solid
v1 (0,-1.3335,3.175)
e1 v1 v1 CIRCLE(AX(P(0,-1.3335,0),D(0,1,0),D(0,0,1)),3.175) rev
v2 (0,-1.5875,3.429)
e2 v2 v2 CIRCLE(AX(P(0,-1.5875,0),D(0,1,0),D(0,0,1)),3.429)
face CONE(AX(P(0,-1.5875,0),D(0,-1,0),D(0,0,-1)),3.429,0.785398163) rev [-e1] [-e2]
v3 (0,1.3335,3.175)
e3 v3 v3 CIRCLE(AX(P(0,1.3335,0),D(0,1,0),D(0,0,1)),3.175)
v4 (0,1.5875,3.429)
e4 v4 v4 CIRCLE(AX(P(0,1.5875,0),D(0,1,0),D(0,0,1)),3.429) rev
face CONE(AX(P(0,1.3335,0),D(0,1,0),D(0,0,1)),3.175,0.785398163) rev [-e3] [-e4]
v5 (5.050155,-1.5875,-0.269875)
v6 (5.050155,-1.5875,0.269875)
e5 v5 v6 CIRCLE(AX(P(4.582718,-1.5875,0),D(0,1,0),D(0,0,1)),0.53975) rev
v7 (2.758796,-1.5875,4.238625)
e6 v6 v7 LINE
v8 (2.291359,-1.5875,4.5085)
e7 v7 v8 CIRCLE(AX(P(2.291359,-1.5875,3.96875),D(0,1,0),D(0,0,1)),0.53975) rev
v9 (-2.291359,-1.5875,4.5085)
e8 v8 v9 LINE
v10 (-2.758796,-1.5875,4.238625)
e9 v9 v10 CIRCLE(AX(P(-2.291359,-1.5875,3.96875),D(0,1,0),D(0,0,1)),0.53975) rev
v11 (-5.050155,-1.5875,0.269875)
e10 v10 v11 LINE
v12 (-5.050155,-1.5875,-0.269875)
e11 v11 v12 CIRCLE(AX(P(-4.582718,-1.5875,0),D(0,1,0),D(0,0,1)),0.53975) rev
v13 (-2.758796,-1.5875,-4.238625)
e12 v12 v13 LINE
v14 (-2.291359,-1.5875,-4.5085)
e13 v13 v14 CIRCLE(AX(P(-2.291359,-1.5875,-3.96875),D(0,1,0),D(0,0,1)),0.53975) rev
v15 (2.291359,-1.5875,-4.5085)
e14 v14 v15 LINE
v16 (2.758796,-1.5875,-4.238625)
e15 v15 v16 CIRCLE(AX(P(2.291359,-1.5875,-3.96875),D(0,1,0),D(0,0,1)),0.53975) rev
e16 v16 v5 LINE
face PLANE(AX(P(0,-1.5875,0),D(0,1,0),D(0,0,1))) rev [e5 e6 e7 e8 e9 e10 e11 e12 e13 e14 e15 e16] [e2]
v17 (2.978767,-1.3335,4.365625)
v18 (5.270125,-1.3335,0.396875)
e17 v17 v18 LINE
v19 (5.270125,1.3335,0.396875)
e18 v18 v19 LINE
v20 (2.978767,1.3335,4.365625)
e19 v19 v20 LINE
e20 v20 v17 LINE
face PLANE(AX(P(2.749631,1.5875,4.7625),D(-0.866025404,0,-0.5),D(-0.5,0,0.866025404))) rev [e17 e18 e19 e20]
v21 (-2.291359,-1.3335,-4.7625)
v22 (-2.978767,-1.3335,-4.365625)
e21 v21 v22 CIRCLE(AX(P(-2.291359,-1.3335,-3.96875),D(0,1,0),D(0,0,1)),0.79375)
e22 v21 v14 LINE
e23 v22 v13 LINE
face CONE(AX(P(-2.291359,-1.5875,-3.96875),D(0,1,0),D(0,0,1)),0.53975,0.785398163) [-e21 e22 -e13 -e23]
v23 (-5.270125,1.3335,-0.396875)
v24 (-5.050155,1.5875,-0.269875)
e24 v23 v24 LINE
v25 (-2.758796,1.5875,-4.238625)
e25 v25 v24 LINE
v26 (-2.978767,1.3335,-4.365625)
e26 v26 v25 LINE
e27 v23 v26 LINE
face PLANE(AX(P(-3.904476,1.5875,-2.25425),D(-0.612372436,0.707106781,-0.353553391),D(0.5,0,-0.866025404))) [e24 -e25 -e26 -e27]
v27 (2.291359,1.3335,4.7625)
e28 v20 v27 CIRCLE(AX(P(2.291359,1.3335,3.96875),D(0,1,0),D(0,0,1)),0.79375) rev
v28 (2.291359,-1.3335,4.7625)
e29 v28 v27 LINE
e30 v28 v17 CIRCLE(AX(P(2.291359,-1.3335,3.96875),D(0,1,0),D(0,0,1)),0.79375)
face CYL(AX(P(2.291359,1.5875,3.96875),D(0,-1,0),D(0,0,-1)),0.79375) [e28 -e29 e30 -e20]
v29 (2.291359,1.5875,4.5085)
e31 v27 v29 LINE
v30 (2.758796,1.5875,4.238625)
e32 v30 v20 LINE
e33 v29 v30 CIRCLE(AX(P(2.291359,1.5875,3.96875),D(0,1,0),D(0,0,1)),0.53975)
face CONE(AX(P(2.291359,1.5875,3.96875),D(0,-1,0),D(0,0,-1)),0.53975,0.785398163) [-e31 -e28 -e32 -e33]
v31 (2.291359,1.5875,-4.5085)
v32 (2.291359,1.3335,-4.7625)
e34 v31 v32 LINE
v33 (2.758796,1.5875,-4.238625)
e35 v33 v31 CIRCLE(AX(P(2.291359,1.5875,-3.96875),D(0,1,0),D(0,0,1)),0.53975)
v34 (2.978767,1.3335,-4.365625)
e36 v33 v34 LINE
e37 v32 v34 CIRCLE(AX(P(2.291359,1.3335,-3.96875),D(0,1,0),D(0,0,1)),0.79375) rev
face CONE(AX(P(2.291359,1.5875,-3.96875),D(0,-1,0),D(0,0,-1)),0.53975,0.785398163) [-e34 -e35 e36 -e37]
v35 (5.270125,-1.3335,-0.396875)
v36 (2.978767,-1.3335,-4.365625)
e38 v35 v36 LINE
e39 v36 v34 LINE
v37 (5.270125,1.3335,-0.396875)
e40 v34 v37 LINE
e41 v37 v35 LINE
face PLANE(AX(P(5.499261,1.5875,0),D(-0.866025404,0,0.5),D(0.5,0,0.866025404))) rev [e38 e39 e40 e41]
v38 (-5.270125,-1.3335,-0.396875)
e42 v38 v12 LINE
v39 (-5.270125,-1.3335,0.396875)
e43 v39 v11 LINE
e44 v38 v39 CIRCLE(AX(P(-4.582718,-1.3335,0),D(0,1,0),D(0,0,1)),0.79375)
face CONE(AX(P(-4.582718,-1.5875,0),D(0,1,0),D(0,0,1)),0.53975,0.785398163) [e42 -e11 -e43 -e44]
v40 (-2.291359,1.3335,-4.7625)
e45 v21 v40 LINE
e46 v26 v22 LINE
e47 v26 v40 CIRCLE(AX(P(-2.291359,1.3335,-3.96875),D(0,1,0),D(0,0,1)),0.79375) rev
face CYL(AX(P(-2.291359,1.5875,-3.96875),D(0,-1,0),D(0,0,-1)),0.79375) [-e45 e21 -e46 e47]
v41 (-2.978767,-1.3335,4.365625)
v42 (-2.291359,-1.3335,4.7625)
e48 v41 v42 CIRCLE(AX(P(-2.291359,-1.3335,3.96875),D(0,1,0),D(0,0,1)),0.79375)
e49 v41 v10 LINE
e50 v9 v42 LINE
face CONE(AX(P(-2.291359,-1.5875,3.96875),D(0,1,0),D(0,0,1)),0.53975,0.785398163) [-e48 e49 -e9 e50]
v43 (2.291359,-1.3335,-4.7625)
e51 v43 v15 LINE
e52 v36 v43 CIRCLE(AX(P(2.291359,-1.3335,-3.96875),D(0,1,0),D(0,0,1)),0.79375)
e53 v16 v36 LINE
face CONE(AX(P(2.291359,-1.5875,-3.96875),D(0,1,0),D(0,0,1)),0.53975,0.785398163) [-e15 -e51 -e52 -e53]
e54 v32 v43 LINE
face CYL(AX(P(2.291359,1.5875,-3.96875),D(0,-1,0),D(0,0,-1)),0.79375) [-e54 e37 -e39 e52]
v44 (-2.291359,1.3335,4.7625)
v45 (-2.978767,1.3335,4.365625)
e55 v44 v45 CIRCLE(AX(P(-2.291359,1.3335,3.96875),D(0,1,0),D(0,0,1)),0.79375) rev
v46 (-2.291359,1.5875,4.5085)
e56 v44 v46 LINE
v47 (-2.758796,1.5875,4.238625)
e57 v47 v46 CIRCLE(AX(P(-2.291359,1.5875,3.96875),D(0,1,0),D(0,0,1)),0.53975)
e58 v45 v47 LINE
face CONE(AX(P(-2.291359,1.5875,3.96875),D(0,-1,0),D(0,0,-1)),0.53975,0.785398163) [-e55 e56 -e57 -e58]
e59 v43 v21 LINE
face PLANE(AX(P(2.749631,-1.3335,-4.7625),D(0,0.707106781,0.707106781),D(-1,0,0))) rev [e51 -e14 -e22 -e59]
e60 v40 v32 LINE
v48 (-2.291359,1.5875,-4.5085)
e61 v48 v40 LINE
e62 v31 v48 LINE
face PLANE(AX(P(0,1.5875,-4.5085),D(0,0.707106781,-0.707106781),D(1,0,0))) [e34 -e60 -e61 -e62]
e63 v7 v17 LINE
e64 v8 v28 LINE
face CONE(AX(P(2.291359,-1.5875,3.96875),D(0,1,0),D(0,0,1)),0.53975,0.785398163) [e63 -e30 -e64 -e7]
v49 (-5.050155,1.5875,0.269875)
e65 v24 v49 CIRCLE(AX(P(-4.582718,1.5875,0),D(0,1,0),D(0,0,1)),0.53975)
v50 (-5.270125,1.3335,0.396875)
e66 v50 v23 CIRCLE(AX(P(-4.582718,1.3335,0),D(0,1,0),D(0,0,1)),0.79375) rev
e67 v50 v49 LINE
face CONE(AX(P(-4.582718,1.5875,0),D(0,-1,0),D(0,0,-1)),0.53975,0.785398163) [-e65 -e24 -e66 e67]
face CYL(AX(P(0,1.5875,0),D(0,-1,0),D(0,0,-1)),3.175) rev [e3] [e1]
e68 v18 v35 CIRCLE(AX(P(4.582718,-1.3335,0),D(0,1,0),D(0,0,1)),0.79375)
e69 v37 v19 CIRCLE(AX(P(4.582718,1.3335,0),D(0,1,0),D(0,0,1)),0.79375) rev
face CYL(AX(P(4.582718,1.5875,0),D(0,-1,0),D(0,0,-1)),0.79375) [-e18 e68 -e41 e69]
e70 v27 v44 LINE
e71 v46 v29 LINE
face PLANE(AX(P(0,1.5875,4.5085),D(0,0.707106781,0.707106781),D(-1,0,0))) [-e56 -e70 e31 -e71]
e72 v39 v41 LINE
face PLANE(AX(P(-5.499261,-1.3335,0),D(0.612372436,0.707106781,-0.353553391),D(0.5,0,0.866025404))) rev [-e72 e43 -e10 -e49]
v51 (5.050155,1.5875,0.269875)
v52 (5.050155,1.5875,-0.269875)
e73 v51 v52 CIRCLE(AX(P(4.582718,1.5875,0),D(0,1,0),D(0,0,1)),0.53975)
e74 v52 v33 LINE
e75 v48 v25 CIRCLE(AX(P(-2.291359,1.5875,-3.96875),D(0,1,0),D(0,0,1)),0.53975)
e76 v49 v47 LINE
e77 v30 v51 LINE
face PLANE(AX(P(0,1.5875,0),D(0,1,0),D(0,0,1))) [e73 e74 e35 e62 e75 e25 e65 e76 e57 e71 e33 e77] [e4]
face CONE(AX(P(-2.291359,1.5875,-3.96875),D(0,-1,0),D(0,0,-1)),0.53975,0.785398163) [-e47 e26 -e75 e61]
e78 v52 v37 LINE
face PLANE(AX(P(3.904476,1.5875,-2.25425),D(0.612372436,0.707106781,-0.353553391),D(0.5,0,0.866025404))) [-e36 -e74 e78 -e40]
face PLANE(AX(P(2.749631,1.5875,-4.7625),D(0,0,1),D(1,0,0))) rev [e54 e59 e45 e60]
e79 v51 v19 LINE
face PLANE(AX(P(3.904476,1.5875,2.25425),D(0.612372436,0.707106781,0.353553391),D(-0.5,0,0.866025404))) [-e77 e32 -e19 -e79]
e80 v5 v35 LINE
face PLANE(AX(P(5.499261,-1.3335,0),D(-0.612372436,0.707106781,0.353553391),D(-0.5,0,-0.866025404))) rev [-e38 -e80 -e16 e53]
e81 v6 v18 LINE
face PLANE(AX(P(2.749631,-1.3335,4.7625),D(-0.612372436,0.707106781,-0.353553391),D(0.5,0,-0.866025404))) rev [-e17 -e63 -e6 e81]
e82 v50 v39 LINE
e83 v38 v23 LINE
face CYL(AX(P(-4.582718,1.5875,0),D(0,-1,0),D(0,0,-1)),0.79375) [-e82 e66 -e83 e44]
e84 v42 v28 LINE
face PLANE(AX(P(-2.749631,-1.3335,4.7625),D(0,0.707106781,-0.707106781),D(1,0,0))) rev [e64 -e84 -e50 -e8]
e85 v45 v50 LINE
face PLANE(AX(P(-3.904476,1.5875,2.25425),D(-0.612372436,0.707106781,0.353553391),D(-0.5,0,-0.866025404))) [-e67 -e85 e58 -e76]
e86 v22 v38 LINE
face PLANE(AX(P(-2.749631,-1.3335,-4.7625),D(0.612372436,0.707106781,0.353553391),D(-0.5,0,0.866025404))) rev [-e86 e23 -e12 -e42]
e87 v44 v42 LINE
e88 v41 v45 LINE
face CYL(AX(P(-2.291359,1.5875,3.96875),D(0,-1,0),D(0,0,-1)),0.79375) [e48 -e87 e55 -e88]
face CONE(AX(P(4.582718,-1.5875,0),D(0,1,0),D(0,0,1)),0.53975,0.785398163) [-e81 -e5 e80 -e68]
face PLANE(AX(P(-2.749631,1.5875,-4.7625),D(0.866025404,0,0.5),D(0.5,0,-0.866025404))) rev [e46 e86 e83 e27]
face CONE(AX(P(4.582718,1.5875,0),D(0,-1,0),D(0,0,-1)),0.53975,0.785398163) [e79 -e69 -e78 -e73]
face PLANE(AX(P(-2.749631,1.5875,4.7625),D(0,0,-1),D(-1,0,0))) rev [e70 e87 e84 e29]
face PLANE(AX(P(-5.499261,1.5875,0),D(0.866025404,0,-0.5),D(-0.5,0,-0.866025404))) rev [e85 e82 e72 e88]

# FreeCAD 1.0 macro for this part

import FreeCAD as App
import Part
import Sketcher

V = App.Vector
Q = App.Units.Quantity


def edges_at(feature, points):
    """Names of the edges that pass closest to the given points."""
    edges = feature.Shape.Edges
    near = lambda p: min(range(len(edges)), key=lambda i: edges[i].distToShape(Part.Vertex(*p))[0])
    return sorted({f"Edge{near(p) + 1}" for p in points})

doc = App.newDocument("Part")
body = doc.addObject("PartDesign::Body", "Body")

# Sketch on XZ plane
sketch1 = body.newObject("Sketcher::SketchObject", "Sketch")
sketch1.AttachmentSupport = (doc.getObject("XZ_Plane"), [""])
sketch1.MapMode = "FlatFace"
sketch1.addGeometry(Part.LineSegment(V(2.7, -4.8, 0), V(-2.7, -4.8, 0)), False)
sketch1.addGeometry(Part.LineSegment(V(-2.7, -4.8, 0), V(-5.5, 0, 0)), False)
sketch1.addGeometry(Part.LineSegment(V(-5.5, 0, 0), V(-2.7, 4.8, 0)), False)
sketch1.addGeometry(Part.LineSegment(V(-2.7, 4.8, 0), V(2.7, 4.8, 0)), False)
sketch1.addGeometry(Part.LineSegment(V(2.7, 4.8, 0), V(5.5, 0, 0)), False)
sketch1.addGeometry(Part.LineSegment(V(5.5, 0, 0), V(2.7, -4.8, 0)), False)
sketch1.addGeometry(Part.Circle(V(0, 0, 0), V(0, 0, 1), 3.2), False)
sketch1.addConstraint(Sketcher.Constraint("Coincident", 0, 2, 1, 1))
sketch1.addConstraint(Sketcher.Constraint("Coincident", 1, 2, 2, 1))
sketch1.addConstraint(Sketcher.Constraint("Coincident", 2, 2, 3, 1))
sketch1.addConstraint(Sketcher.Constraint("Coincident", 3, 2, 4, 1))
sketch1.addConstraint(Sketcher.Constraint("Coincident", 4, 2, 5, 1))
sketch1.addConstraint(Sketcher.Constraint("Coincident", 5, 2, 0, 1))
sketch1.addConstraint(Sketcher.Constraint("Horizontal", 0))
sketch1.addConstraint(Sketcher.Constraint("Horizontal", 3))
sketch1.addConstraint(Sketcher.Constraint("Coincident", 6, 3, -1, 1))
sketch1.addConstraint(Sketcher.Constraint("Symmetric", 0, 2, 3, 2, -1, 1))
sketch1.addConstraint(Sketcher.Constraint("Symmetric", 1, 2, 4, 2, -1, 1))
sketch1.addConstraint(Sketcher.Constraint("PointOnObject", 1, 2, -1))
sketch1.addConstraint(Sketcher.Constraint("Parallel", 2, 5))
sketch1.addConstraint(Sketcher.Constraint("Vertical", 0, 2, 2, 2))
sketch1.addConstraint(Sketcher.Constraint("Diameter", 6, Q("0.25 in")))
sketch1.addConstraint(Sketcher.Constraint("Angle", 1, Q("120 deg")))
sketch1.addConstraint(Sketcher.Constraint("DistanceY", 0, 2, -1, 1, Q("0.1875 in")))
sketch1.addConstraint(Sketcher.Constraint("DistanceX", 0, 2, 0, 1, 5.499261))
pad1 = body.newObject("PartDesign::Pad", "Pad")
pad1.Profile = sketch1
pad1.Length = Q("0.125 in")
pad1.Midplane = True
doc.recompute()

fillet = body.newObject("PartDesign::Fillet", "Fillet")
fillet.Base = (pad1, edges_at(pad1, [
    (5.499, 0, 0),
    (2.75, 0, 4.763),
    (-2.75, 0, 4.763),
    (-5.499, 0, 0),
    (-2.75, 0, -4.763),
    (2.75, 0, -4.763),
]))
fillet.Radius = Q("0.03125 in")
doc.recompute()

chamfer = body.newObject("PartDesign::Chamfer", "Chamfer")
chamfer.Base = (fillet, edges_at(fillet, [
    (-3.175, -1.587, 0),
    (-3.175, 1.587, 0),
    (-4.124, -1.587, 2.381),
    (-4.124, 1.587, 2.381),
    (4.124, -1.587, -2.381),
    (4.124, -1.587, 2.381),
    (0, -1.587, 4.763),
    (-4.124, -1.587, -2.381),
    (0, -1.587, -4.763),
    (2.688, -1.587, 4.656),
    (-2.688, -1.587, 4.656),
    (5.376, -1.587, 0),
    (2.688, -1.587, -4.656),
    (-2.688, -1.587, -4.656),
    (-5.376, -1.587, 0),
    (-4.124, 1.587, -2.381),
    (4.124, 1.587, -2.381),
    (0, 1.587, -4.763),
    (0, 1.587, 4.763),
    (4.124, 1.587, 2.381),
    (2.688, 1.587, 4.656),
    (-2.688, 1.587, 4.656),
    (5.376, 1.587, 0),
    (2.688, 1.587, -4.656),
    (-2.688, 1.587, -4.656),
    (-5.376, 1.587, 0),
]))
chamfer.Size = Q("0.01 in")

doc.recompute()
